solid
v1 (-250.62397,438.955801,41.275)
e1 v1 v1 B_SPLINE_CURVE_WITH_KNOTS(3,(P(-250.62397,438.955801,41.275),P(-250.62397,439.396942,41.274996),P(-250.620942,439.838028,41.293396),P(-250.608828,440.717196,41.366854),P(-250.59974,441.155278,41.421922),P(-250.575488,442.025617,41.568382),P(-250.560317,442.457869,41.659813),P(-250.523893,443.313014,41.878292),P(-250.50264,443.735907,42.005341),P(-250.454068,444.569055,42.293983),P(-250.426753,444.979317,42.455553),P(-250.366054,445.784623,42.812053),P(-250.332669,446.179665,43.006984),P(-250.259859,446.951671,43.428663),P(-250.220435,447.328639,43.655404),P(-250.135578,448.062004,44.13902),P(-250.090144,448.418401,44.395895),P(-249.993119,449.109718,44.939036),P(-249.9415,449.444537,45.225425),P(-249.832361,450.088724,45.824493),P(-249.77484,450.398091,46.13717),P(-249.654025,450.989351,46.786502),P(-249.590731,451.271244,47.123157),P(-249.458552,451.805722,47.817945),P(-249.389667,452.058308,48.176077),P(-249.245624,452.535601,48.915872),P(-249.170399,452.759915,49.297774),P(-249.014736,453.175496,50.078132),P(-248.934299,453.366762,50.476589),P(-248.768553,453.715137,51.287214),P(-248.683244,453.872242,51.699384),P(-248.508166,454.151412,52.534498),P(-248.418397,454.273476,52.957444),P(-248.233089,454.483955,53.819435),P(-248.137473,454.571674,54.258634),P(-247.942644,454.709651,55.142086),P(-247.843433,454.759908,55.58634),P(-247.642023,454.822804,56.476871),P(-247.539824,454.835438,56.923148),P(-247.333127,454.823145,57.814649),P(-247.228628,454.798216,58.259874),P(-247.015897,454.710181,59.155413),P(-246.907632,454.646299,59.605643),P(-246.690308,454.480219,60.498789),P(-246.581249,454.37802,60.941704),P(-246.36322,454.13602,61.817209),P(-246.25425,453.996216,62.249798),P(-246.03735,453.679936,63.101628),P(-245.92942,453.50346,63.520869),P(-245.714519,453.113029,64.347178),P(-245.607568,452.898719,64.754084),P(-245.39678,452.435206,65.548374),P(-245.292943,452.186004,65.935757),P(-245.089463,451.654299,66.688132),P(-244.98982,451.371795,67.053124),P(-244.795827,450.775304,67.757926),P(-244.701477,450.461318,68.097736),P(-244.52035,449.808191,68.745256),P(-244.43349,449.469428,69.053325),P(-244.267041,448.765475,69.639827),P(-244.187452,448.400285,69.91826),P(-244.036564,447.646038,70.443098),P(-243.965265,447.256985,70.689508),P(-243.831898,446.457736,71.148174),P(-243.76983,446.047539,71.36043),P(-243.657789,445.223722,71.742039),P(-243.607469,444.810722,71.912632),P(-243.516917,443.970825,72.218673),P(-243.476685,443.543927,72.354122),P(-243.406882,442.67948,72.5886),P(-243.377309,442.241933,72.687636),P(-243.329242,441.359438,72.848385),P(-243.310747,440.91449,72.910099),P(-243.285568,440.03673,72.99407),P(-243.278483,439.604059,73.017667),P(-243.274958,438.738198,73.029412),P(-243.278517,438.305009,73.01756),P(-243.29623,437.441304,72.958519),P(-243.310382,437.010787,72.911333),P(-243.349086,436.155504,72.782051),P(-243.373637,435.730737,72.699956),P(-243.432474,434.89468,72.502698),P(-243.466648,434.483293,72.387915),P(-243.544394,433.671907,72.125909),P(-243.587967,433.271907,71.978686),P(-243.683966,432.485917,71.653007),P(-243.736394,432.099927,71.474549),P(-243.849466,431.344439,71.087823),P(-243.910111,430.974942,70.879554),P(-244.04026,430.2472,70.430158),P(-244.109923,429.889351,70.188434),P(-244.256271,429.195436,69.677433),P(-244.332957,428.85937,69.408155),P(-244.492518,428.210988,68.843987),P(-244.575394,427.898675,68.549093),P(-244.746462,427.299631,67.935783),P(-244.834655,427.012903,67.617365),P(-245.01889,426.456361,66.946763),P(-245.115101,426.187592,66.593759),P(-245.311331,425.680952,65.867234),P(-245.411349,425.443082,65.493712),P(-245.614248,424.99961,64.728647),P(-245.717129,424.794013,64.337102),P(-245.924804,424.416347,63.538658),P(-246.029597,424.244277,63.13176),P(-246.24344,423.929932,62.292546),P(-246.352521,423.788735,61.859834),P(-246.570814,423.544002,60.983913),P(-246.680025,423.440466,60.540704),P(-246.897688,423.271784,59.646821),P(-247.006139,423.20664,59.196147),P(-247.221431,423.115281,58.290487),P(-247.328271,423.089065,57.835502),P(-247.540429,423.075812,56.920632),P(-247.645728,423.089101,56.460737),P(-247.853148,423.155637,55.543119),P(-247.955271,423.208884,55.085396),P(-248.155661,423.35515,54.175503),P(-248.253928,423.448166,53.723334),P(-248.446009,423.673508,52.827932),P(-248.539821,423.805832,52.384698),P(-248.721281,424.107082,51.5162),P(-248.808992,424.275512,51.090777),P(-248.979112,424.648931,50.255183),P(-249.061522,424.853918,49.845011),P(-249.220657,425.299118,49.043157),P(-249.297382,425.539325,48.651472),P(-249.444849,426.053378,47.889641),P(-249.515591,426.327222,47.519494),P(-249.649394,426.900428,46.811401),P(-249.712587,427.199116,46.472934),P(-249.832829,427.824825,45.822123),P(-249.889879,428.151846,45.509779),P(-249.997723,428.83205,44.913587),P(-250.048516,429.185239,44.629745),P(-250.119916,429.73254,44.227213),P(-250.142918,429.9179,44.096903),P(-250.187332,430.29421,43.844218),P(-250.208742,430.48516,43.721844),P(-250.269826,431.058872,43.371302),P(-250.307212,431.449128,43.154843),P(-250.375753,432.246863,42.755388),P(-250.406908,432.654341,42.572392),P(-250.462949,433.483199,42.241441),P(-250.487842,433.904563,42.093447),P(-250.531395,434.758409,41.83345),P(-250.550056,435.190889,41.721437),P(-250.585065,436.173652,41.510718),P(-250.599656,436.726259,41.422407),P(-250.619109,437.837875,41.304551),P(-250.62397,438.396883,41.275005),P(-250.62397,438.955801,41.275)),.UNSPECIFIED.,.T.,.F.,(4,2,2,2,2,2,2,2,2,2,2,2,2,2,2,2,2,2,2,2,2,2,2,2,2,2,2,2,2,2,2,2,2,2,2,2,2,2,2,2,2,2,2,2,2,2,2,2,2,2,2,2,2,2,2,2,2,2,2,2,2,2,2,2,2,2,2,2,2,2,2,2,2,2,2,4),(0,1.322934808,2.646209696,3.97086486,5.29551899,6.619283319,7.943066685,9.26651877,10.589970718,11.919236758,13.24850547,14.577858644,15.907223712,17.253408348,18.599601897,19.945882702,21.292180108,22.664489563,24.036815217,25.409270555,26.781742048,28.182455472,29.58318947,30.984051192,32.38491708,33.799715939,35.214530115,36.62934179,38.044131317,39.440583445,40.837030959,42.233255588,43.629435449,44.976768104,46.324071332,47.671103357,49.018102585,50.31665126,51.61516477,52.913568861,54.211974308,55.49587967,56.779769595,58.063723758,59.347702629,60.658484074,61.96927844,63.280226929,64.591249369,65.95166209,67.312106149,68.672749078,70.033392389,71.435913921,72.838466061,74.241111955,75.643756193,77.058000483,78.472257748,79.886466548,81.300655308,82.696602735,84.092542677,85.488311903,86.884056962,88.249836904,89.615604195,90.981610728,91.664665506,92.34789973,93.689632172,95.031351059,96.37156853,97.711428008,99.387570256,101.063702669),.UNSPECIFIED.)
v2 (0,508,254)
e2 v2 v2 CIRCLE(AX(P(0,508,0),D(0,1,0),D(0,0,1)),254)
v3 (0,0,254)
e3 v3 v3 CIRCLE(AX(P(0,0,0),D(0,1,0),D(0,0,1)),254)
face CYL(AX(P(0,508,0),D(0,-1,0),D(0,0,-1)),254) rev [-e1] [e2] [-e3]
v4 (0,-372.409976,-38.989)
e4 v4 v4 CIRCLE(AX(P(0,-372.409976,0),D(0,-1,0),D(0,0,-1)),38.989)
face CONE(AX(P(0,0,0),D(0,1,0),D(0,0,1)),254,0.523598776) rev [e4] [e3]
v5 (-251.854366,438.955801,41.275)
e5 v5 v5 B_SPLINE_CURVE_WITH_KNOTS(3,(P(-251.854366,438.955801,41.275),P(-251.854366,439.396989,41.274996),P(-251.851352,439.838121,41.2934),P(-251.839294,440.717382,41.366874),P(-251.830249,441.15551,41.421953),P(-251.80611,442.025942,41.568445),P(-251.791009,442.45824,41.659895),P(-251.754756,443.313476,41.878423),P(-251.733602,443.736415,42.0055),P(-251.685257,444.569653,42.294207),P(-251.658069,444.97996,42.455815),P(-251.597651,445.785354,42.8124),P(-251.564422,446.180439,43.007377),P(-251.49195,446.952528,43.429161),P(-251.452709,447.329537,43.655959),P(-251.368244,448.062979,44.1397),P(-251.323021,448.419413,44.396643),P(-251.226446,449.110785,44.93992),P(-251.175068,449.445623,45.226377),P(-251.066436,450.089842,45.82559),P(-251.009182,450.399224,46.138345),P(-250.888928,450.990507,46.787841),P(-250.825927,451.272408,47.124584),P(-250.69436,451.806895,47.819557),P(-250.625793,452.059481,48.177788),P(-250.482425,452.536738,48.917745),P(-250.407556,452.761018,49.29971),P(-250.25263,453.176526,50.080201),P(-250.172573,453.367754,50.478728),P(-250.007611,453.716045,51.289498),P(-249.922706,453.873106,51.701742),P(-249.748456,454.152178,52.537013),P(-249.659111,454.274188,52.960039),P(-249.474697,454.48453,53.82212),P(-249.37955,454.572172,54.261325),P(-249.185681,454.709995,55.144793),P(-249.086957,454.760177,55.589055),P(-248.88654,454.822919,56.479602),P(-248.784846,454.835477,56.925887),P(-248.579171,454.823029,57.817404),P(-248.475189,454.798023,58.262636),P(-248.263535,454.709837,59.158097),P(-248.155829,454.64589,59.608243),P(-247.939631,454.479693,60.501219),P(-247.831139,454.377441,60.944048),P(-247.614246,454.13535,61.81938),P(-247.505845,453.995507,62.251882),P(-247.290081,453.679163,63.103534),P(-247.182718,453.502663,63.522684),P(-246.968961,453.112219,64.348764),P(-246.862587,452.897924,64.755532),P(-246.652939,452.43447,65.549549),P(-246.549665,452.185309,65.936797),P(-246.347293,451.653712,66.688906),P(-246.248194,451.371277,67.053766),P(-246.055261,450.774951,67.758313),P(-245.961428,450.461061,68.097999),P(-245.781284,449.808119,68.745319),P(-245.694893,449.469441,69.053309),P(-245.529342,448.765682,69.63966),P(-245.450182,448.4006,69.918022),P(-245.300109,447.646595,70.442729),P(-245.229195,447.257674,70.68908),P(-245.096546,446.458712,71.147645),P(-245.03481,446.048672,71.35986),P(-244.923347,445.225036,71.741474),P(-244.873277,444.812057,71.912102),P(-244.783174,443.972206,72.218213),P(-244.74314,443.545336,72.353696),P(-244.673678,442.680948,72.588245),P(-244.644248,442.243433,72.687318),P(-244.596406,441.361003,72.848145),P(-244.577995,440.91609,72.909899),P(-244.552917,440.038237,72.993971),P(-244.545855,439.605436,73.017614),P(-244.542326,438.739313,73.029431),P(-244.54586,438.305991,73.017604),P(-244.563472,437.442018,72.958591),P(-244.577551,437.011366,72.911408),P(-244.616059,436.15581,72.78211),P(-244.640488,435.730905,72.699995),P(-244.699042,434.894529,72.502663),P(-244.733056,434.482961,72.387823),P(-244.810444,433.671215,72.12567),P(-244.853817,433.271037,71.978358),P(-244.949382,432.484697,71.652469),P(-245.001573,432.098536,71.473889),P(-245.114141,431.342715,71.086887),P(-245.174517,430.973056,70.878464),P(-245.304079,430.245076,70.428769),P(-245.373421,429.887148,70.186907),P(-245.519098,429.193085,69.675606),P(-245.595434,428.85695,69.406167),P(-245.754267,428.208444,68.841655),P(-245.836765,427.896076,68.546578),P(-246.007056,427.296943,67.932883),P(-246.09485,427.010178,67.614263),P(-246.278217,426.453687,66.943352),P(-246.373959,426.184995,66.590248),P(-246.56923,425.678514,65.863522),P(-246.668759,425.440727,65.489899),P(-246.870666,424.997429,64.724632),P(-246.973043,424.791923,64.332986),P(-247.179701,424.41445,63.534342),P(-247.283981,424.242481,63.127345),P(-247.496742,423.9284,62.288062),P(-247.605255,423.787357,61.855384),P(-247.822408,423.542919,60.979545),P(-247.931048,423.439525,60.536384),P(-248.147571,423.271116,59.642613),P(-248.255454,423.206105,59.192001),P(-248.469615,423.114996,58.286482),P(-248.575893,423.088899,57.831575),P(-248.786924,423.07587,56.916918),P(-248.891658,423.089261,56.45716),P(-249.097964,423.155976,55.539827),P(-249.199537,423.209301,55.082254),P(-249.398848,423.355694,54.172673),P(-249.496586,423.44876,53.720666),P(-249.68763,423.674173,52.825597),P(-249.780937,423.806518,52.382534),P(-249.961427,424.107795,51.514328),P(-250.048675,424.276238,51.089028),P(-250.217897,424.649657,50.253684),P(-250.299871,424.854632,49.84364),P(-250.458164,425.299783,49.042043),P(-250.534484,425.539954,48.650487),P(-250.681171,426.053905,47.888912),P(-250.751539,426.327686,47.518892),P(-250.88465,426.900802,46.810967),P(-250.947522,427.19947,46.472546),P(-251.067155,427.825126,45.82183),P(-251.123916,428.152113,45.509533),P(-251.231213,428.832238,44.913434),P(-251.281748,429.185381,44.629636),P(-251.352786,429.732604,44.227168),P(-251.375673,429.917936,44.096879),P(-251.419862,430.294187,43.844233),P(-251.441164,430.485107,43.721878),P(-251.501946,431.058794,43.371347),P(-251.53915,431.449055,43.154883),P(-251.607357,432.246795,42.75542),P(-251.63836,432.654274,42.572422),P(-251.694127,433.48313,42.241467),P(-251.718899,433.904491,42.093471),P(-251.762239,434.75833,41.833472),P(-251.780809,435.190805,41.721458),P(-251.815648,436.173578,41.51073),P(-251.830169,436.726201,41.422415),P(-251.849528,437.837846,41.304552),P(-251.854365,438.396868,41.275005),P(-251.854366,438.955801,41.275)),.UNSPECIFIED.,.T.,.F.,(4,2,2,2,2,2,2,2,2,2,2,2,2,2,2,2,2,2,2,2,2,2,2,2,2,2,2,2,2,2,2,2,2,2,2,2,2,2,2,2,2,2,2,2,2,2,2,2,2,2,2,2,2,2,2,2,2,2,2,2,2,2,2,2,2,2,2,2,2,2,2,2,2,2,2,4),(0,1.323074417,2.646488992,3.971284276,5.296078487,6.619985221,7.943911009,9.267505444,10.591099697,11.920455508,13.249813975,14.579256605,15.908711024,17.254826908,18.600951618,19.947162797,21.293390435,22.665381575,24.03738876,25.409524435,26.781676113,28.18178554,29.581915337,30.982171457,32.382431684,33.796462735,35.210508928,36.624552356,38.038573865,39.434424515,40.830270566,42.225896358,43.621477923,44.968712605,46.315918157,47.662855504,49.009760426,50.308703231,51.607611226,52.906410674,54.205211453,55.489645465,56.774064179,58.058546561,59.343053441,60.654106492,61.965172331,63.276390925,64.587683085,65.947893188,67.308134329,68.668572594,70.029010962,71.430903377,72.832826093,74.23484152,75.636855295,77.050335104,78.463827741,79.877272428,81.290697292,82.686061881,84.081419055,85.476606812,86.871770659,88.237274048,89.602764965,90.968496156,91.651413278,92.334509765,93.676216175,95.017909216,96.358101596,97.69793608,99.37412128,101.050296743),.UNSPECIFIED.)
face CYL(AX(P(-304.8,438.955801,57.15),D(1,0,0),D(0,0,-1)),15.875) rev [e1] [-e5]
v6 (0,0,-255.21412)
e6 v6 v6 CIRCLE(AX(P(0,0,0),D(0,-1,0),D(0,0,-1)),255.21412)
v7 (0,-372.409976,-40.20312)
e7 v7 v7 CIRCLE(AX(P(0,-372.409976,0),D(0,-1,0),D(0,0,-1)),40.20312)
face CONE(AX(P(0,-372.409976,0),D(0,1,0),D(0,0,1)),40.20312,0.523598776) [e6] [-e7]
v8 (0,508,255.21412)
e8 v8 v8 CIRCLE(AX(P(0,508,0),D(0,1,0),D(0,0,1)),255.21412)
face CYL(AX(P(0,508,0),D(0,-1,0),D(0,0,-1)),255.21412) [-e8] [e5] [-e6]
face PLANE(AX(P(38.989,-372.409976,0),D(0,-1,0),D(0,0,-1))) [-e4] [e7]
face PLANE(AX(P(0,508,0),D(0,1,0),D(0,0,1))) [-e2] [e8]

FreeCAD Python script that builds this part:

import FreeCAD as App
import Part
import Sketcher
from FreeCAD import Vector
Q = App.Units.Quantity


def add_polygon(sketch, points):
    """Adds a closed chain of lines whose ends are joined by coincident constraints."""
    first, n = sketch.GeometryCount, len(points)
    for a, b in zip(points, points[1:] + points[:1]):
        sketch.addGeometry(Part.LineSegment(App.Vector(*a, 0), App.Vector(*b, 0)), False)
    for i in range(n):
        sketch.addConstraint(Sketcher.Constraint("Coincident", first + i, 2, first + (i + 1) % n, 1))

doc = App.newDocument("Part")
params = doc.addObject("Spreadsheet::Sheet", "Params")
for row, (alias, value) in enumerate([
    ("sketch1_diameter", "20 in"),
    ("pad1_length", "20 in"),
    ("sketch2_length", "16.93 in"),
    ("revolution_angle", "360 deg"),
    ("sketch3_diameter", "1.25 in"),
    ("pocket1_length", "12 in"),
], start=1):
    params.set(f"A{row}", alias)
    params.set(f"B{row}", "=" + value)
    params.setAlias(f"B{row}", alias)

body = doc.addObject("PartDesign::Body", "Body")

# Sketch on XZ plane
sketch1 = body.newObject("Sketcher::SketchObject", "Sketch")
sketch1.AttachmentSupport = (doc.getObject("XZ_Plane"), [""])
sketch1.MapMode = "FlatFace"
sketch1.addGeometry([
    Part.Circle(Vector(0, 0, 0), Vector(0, 0, 1), 255),
    Part.Circle(Vector(0, 0, 0), Vector(0, 0, 1), 254),
], False)
sketch1.addConstraint([
    Sketcher.Constraint("Coincident", 0, 3, -1, 1),
    Sketcher.Constraint("Coincident", 1, 3, -1, 1),
    Sketcher.Constraint("Diameter", 1, Q("20 in")),
    Sketcher.Constraint("Diameter", 0, Q("20.0956 in")),
])
sketch1.setExpression("Constraints[2]", "Params.sketch1_diameter")
pad1 = body.newObject("PartDesign::Pad", "Pad")
pad1.Profile = sketch1
pad1.setExpression("Length", "Params.pad1_length")
pad1.Reversed = True

# Sketch on XY plane
sketch2 = body.newObject("Sketcher::SketchObject", "Sketch001")
sketch2.AttachmentSupport = (doc.getObject("XY_Plane"), [""])
sketch2.MapMode = "FlatFace"
add_polygon(sketch2, [(254, 0), (39, -372.4), (40.2, -372.4), (255.2, 0)])  # lines 0-3
sketch2.addConstraint([
    Sketcher.Constraint("Horizontal", 1),
    Sketcher.Constraint("Horizontal", 3),
    Sketcher.Constraint("PointOnObject", 2, 2, -1),
    Sketcher.Constraint("Parallel", 0, 2),
    Sketcher.Constraint("DistanceX", -1, 1, 3, 2, Q("10 in")),
    Sketcher.Constraint("Angle", 0, Q("-120 deg")),
    Sketcher.Constraint("Distance", 0, Q("16.93 in")),
    Sketcher.Constraint("DistanceX", 1, 1, 1, 2, Q("0.0478 in")),
])
sketch2.setExpression("Constraints[10]", "Params.sketch2_length")
revolution = body.newObject("PartDesign::Revolution", "Revolution")
revolution.Profile = sketch2
revolution.ReferenceAxis = (sketch2, ["V_Axis"])
revolution.setExpression("Angle", "Params.revolution_angle")

# Sketch on YZ plane
sketch3 = body.newObject("Sketcher::SketchObject", "Sketch002")
sketch3.AttachmentSupport = (doc.getObject("YZ_Plane"), [""])
sketch3.MapMode = "FlatFace"
sketch3.addGeometry(Part.Circle(Vector(439, 57, 0), Vector(0, 0, 1), 16), False)
sketch3.addConstraint([
    Sketcher.Constraint("Diameter", 0, Q("1.25 in")),
    Sketcher.Constraint("DistanceY", -1, 1, 0, 3, Q("2.25 in")),
    Sketcher.Constraint("DistanceX", -1, 1, 0, 3, 438.955801),
])
sketch3.setExpression("Constraints[0]", "Params.sketch3_diameter")
pocket1 = body.newObject("PartDesign::Pocket", "Pocket")
pocket1.Profile = sketch3
pocket1.setExpression("Length", "Params.pocket1_length")

doc.recompute()
